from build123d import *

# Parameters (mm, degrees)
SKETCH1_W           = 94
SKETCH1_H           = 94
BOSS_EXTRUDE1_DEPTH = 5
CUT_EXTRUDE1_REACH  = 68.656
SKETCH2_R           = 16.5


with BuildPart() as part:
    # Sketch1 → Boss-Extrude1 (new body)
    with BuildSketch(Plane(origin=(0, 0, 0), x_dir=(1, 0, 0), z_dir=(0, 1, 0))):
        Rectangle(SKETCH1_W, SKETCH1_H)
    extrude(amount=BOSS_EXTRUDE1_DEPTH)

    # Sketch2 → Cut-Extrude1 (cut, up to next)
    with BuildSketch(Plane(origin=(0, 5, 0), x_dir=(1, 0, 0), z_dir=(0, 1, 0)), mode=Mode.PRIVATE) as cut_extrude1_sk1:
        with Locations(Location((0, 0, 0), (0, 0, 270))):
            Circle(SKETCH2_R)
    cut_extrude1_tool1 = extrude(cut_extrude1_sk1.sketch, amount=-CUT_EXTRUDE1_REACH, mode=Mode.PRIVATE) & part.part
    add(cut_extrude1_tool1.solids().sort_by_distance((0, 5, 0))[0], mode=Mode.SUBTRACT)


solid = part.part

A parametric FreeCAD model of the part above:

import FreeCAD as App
import Part
import Sketcher
from FreeCAD import Vector

doc = App.newDocument("Part")
params = doc.addObject("Spreadsheet::Sheet", "Params")
for row, (alias, value) in enumerate([
    ("sketch1_width", "94 mm"),
    ("pad1_length", "5 mm"),
    ("sketch2_diameter", "33 mm"),
], start=1):
    params.set(f"A{row}", alias)
    params.set(f"B{row}", "=" + value)
    params.setAlias(f"B{row}", alias)

body = doc.addObject("PartDesign::Body", "Body")

# Sketch on XZ plane
sketch1 = body.newObject("Sketcher::SketchObject", "Sketch")
sketch1.AttachmentSupport = (doc.getObject("XZ_Plane"), [""])
sketch1.MapMode = "FlatFace"
sketch1.addGeometry([
    Part.LineSegment(Vector(-47, -47, 0), Vector(-47, 47, 0)),
    Part.LineSegment(Vector(-47, 47, 0), Vector(47, 47, 0)),
    Part.LineSegment(Vector(47, 47, 0), Vector(47, -47, 0)),
    Part.LineSegment(Vector(47, -47, 0), Vector(-47, -47, 0)),
], False)
sketch1.addConstraint([
    Sketcher.Constraint("Coincident", 0, 2, 1, 1),
    Sketcher.Constraint("Coincident", 1, 2, 2, 1),
    Sketcher.Constraint("Coincident", 2, 2, 3, 1),
    Sketcher.Constraint("Coincident", 3, 2, 0, 1),
    Sketcher.Constraint("Vertical", 0),
    Sketcher.Constraint("Horizontal", 1),
    Sketcher.Constraint("Vertical", 2),
    Sketcher.Constraint("Horizontal", 3),
    Sketcher.Constraint("Symmetric", 0, 2, 2, 2, -1, 1),
    Sketcher.Constraint("Equal", 3, 0),
    Sketcher.Constraint("DistanceX", 1, 1, 1, 2, 94.0),
])
sketch1.setExpression("Constraints[10]", "Params.sketch1_width")
pad1 = body.newObject("PartDesign::Pad", "Pad")
pad1.Profile = sketch1
pad1.setExpression("Length", "Params.pad1_length")
pad1.Reversed = True

# Sketch on XZ plane
sketch2 = body.newObject("Sketcher::SketchObject", "Sketch001")
sketch2.AttachmentSupport = (doc.getObject("XZ_Plane"), [""])
sketch2.MapMode = "FlatFace"
sketch2.AttachmentOffset = App.Placement(Vector(0, 0, -5), App.Rotation())
sketch2.addGeometry(Part.Circle(Vector(0, 0, 0), Vector(0, 0, 1), 16), False)
sketch2.addConstraint([
    Sketcher.Constraint("Coincident", 0, 3, -1, 1),
    Sketcher.Constraint("Diameter", 0, 33.0),
])
sketch2.setExpression("Constraints[1]", "Params.sketch2_diameter")
pocket1 = body.newObject("PartDesign::Pocket", "Pocket")
pocket1.Profile = sketch2
pocket1.Type = "UpToFirst"
pocket1.Reversed = True

doc.recompute()
